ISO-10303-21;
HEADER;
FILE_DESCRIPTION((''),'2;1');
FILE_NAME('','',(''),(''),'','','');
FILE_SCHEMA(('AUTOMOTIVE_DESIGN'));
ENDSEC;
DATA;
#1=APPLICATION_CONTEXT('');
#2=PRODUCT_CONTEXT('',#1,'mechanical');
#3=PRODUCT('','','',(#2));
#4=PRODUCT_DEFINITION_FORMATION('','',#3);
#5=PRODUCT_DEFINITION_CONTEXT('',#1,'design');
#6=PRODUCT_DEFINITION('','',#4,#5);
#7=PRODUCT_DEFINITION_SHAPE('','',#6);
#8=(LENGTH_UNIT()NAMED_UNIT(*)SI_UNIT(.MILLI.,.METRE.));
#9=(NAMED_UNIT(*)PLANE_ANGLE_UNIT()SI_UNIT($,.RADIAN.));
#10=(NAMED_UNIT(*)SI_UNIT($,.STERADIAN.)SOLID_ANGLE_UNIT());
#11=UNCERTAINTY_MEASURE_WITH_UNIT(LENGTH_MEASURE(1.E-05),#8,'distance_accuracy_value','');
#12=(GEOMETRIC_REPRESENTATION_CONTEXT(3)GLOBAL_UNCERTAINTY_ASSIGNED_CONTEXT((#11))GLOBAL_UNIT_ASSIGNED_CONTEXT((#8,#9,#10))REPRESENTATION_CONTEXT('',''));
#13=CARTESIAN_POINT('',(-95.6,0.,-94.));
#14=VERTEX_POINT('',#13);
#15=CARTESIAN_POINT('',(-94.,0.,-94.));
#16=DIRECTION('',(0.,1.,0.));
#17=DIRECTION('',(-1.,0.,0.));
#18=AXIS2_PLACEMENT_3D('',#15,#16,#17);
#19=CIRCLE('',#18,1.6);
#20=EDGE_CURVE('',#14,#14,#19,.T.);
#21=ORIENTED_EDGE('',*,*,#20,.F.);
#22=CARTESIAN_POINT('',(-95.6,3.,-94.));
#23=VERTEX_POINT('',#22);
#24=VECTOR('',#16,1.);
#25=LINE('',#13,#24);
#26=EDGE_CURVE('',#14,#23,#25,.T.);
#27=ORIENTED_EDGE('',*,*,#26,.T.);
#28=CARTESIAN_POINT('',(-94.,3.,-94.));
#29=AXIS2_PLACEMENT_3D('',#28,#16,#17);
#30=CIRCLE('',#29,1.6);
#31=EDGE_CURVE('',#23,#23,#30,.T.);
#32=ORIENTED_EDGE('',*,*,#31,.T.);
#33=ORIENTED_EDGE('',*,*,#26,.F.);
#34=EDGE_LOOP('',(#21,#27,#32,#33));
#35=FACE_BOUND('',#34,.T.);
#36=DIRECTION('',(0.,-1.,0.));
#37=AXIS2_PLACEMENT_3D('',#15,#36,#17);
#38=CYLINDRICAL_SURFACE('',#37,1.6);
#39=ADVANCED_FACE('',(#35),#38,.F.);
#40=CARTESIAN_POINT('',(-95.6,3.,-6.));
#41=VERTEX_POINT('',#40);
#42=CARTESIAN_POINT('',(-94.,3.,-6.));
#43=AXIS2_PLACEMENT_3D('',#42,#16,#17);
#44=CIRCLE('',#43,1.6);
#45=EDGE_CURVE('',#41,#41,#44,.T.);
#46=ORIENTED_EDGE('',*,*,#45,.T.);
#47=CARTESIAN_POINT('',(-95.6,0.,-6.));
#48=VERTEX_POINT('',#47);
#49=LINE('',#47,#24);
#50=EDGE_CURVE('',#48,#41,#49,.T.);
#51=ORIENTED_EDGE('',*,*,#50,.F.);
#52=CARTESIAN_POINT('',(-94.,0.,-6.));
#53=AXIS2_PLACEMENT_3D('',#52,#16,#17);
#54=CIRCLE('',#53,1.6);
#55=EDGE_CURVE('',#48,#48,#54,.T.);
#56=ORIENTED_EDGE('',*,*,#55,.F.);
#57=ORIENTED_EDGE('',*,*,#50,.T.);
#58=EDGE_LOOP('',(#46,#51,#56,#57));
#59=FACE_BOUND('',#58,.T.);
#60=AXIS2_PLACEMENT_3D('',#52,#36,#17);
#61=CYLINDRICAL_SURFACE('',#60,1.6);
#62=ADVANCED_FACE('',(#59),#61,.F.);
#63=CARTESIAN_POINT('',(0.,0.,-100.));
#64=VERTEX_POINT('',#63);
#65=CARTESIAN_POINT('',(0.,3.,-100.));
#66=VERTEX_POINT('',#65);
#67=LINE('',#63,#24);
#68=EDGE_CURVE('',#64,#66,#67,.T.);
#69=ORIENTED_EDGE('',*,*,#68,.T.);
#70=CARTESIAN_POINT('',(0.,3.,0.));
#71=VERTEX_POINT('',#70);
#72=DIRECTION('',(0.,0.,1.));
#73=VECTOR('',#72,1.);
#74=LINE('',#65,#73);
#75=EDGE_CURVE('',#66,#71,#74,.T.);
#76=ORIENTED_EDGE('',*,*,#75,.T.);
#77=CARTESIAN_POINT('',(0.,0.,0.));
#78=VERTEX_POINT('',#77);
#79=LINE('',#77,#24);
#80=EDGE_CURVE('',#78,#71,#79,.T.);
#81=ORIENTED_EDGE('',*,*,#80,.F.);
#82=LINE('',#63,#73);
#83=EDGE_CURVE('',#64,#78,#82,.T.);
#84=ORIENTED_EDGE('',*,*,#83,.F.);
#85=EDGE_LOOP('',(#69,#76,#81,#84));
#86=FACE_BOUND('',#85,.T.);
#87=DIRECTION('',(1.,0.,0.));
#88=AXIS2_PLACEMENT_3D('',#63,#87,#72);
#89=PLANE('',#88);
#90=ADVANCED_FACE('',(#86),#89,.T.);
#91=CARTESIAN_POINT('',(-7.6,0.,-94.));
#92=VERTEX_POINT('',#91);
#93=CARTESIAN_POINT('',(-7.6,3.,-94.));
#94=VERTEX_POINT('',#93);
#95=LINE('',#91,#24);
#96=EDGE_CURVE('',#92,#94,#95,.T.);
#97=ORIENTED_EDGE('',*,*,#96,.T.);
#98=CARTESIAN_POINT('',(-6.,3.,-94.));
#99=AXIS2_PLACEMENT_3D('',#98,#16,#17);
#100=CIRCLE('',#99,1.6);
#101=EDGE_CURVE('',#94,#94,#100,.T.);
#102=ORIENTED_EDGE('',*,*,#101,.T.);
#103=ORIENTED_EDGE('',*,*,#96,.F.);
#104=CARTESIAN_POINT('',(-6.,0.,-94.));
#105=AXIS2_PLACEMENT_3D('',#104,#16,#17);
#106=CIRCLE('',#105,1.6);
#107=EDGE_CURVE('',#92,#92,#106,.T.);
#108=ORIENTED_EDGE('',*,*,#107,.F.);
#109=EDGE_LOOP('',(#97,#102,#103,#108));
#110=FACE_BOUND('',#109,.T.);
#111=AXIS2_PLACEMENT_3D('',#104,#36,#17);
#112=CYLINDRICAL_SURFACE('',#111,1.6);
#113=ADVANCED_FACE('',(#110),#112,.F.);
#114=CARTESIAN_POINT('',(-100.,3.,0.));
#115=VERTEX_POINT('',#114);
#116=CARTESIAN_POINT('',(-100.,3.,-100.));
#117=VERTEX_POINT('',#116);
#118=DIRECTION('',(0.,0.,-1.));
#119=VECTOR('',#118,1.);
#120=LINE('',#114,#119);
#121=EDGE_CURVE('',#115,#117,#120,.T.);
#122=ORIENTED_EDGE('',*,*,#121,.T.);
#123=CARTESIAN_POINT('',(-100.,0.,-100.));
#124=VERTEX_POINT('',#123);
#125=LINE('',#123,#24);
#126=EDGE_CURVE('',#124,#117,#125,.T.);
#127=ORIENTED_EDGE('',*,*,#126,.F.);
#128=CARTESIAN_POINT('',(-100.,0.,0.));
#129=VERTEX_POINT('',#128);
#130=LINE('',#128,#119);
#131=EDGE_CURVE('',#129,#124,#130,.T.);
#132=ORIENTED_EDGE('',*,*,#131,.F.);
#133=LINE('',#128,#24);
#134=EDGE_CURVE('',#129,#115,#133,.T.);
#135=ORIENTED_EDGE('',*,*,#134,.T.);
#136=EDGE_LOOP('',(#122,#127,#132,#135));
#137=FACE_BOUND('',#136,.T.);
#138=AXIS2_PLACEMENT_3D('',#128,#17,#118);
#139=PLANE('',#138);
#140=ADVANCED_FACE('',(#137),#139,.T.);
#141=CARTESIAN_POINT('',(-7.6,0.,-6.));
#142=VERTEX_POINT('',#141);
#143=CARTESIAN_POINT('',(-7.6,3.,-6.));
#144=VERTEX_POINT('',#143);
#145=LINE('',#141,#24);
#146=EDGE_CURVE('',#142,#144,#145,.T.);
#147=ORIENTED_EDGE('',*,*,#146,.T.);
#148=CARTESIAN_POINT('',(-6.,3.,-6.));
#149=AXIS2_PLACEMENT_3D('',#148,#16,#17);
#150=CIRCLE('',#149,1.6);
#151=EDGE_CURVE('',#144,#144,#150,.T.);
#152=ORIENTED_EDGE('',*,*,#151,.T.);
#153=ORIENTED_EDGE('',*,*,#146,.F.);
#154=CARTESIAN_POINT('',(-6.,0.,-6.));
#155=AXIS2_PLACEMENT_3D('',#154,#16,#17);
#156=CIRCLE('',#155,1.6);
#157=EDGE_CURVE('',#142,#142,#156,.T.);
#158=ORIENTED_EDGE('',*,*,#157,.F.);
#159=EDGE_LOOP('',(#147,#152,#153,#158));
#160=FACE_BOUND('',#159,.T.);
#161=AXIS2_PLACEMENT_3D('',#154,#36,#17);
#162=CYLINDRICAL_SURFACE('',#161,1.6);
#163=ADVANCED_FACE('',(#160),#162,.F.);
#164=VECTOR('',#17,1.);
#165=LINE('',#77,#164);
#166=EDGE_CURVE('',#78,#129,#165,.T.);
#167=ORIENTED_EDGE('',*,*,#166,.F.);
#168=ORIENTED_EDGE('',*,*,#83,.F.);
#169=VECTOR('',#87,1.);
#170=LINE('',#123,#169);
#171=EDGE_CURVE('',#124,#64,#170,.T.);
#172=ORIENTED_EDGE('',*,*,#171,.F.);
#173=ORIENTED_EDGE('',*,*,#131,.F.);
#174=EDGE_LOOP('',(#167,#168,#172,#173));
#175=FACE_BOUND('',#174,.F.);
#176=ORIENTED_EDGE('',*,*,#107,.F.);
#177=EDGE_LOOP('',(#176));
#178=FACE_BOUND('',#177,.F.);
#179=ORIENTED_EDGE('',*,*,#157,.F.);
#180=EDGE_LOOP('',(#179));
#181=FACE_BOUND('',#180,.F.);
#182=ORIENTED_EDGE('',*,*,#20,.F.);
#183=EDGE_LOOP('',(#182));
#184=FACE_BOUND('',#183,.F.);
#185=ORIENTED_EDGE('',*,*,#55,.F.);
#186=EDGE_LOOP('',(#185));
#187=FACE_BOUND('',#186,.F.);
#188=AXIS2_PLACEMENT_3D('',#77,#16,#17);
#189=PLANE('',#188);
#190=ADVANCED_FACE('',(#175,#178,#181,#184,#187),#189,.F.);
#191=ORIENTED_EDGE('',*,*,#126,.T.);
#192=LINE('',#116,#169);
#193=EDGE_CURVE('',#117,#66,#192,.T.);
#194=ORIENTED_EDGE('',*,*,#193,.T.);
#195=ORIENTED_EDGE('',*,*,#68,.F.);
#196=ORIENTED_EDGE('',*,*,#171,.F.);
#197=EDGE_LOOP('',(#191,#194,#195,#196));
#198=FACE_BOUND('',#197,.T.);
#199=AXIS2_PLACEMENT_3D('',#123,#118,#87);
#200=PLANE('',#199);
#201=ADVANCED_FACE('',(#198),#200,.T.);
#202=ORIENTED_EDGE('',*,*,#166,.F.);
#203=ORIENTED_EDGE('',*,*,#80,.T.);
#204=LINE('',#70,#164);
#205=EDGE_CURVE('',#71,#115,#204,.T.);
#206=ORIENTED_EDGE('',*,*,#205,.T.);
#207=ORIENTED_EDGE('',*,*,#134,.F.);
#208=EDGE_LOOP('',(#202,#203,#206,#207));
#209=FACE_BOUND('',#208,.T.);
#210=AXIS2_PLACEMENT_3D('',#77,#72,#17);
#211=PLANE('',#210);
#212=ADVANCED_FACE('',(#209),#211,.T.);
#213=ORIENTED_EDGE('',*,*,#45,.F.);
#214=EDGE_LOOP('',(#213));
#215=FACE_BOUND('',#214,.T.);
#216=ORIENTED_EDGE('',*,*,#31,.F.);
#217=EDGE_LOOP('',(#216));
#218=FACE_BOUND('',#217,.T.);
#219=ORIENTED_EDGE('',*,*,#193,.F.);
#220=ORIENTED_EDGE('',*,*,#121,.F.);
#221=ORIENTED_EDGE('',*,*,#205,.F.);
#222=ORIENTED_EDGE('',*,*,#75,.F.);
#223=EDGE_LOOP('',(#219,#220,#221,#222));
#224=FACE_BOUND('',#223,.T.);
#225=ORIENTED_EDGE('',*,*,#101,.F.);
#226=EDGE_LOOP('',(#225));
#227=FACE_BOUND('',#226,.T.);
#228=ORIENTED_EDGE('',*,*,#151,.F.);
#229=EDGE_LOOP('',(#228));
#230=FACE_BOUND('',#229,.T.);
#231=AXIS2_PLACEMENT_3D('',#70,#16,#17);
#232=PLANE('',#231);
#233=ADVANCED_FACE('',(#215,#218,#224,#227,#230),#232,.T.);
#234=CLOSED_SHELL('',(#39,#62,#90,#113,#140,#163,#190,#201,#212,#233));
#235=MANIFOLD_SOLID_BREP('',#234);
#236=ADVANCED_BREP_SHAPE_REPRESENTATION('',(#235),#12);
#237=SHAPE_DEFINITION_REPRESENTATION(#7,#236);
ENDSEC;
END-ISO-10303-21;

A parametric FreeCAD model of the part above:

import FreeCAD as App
import Part
import Sketcher
from FreeCAD import Vector
Q = App.Units.Quantity


def add_polygon(sketch, points):
    """Adds a closed chain of lines whose ends are joined by coincident constraints."""
    first, n = sketch.GeometryCount, len(points)
    for a, b in zip(points, points[1:] + points[:1]):
        sketch.addGeometry(Part.LineSegment(App.Vector(*a, 0), App.Vector(*b, 0)), False)
    for i in range(n):
        sketch.addConstraint(Sketcher.Constraint("Coincident", first + i, 2, first + (i + 1) % n, 1))

doc = App.newDocument("Part")
params = doc.addObject("Spreadsheet::Sheet", "Params")
for row, (alias, value) in enumerate([
    ("sketch1_diameter", "3.2 mm"),
    ("sketch1_width", "100 mm"),
    ("pad1_length", "3 mm"),
], start=1):
    params.set(f"A{row}", alias)
    params.set(f"B{row}", "=" + value)
    params.setAlias(f"B{row}", alias)

body = doc.addObject("PartDesign::Body", "Body")

# Sketch on XZ plane
sketch1 = body.newObject("Sketcher::SketchObject", "Sketch")
sketch1.AttachmentSupport = (doc.getObject("XZ_Plane"), [""])
sketch1.MapMode = "FlatFace"
add_polygon(sketch1, [(-100, 0), (0, 0), (0, -100), (-100, -100)])  # lines 0-3
sketch1.addGeometry(Part.Circle(Vector(-6, -94, 0), Vector(0, 0, 1), 1.6), False)  # 4
sketch1.addGeometry(Part.Circle(Vector(-94, -94, 0), Vector(0, 0, 1), 1.6), False)  # 5
sketch1.addGeometry(Part.Circle(Vector(-6, -6, 0), Vector(0, 0, 1), 1.6), False)  # 6
sketch1.addGeometry(Part.Circle(Vector(-94, -6, 0), Vector(0, 0, 1), 1.6), False)  # 7
sketch1.addConstraint(Sketcher.Constraint("Horizontal", 0))
sketch1.addConstraint(Sketcher.Constraint("Vertical", 1))
sketch1.addConstraint(Sketcher.Constraint("Horizontal", 2))
sketch1.addConstraint(Sketcher.Constraint("Vertical", 3))
sketch1.addConstraint(Sketcher.Constraint("Coincident", 0, 2, -1, 1))
sketch1.addConstraint(Sketcher.Constraint("Equal", 4, 5))
sketch1.addConstraint(Sketcher.Constraint("Equal", 5, 6))
sketch1.addConstraint(Sketcher.Constraint("Equal", 6, 7))
sketch1.addConstraint(Sketcher.Constraint("Horizontal", 4, 3, 5, 3))
sketch1.addConstraint(Sketcher.Constraint("Horizontal", 6, 3, 7, 3))
sketch1.addConstraint(Sketcher.Constraint("Vertical", 4, 3, 6, 3))
sketch1.addConstraint(Sketcher.Constraint("Vertical", 5, 3, 7, 3))
sketch1.addConstraint(Sketcher.Constraint("Equal", 2, 1))
sketch1.addConstraint(Sketcher.Constraint("Diameter", 4, Q("3.2 mm")))
sketch1.addConstraint(Sketcher.Constraint("DistanceX", 0, 1, 0, 2, Q("100 mm")))
sketch1.addConstraint(Sketcher.Constraint("DistanceX", 4, 3, -1, 1, Q("6 mm")))
sketch1.addConstraint(Sketcher.Constraint("DistanceY", 6, 3, -1, 1, Q("6 mm")))
sketch1.addConstraint(Sketcher.Constraint("DistanceY", 1, 2, 4, 3, Q("6 mm")))
sketch1.addConstraint(Sketcher.Constraint("DistanceX", 2, 2, 5, 3, Q("6 mm")))
sketch1.setExpression("Constraints[17]", "Params.sketch1_diameter")
sketch1.setExpression("Constraints[18]", "Params.sketch1_width")
pad1 = body.newObject("PartDesign::Pad", "Pad")
pad1.Profile = sketch1
pad1.setExpression("Length", "Params.pad1_length")
pad1.Reversed = True

doc.recompute()
